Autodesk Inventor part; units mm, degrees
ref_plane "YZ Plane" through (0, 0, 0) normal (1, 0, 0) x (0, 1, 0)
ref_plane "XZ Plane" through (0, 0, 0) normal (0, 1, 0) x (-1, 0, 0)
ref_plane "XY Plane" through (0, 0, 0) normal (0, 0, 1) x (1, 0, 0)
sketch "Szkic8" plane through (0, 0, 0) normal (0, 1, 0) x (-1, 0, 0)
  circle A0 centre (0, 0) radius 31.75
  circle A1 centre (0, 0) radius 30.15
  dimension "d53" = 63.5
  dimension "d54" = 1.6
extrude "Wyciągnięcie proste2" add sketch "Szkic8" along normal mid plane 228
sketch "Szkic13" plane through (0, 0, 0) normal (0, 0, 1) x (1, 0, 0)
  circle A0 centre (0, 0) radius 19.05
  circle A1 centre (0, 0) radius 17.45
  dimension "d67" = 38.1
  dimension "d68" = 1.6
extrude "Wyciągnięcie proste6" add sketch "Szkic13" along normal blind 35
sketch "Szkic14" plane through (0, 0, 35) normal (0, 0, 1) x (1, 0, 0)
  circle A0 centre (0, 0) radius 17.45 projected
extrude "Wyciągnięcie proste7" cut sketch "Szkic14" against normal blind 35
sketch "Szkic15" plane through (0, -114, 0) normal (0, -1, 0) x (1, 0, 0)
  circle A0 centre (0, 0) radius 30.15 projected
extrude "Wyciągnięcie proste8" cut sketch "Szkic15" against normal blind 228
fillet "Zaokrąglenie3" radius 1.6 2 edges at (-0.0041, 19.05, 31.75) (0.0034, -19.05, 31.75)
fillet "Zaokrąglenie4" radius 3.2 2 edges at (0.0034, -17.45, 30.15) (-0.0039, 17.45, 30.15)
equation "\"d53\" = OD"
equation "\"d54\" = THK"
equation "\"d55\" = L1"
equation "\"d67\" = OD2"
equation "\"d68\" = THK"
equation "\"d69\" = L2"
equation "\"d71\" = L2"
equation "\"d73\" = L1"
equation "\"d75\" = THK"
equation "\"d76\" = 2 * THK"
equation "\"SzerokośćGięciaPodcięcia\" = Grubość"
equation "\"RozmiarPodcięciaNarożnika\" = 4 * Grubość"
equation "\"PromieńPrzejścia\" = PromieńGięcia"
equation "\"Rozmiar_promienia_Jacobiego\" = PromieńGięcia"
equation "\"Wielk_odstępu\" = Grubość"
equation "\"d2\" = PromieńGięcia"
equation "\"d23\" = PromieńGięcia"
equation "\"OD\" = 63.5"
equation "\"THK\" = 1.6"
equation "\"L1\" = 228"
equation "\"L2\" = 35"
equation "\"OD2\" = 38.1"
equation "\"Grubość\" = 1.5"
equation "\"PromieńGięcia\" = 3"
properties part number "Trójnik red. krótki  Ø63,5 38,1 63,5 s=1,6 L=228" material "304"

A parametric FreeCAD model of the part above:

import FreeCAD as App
import Part
import Sketcher
from FreeCAD import Vector
Q = App.Units.Quantity


def edges_at(feature, points):
    """Names of the edges that pass closest to the given points."""
    edges = feature.Shape.Edges
    near = lambda p: min(range(len(edges)), key=lambda i: edges[i].distToShape(Part.Vertex(*p))[0])
    return sorted({f"Edge{near(p) + 1}" for p in points})

doc = App.newDocument("Part")
body = doc.addObject("PartDesign::Body", "Body")

sketch1 = body.newObject("Sketcher::SketchObject", "Sketch")
sketch1.AttachmentSupport = (doc.getObject("XZ_Plane"), [""])
sketch1.MapMode = "FlatFace"
sketch1.addGeometry([
    Part.Circle(Vector(0, 0, 0), Vector(0, 0, 1), 32),
    Part.Circle(Vector(0, 0, 0), Vector(0, 0, 1), 30),
], False)
sketch1.addConstraint([
    Sketcher.Constraint("Coincident", 0, 3, -1, 1),
    Sketcher.Constraint("Coincident", 1, 3, -1, 1),
    Sketcher.Constraint("Diameter", 0, Q("63.5 mm")),
    Sketcher.Constraint("Diameter", 1, Q("60.3 mm")),
])
pad1 = body.newObject("PartDesign::Pad", "Pad")
pad1.Profile = sketch1
pad1.Length = 228
pad1.Midplane = True

sketch2 = body.newObject("Sketcher::SketchObject", "Sketch001")
sketch2.AttachmentSupport = (doc.getObject("XY_Plane"), [""])
sketch2.MapMode = "FlatFace"
sketch2.addGeometry([
    Part.Circle(Vector(0, 0, 0), Vector(0, 0, 1), 19),
    Part.Circle(Vector(0, 0, 0), Vector(0, 0, 1), 17),
], False)
sketch2.addConstraint([
    Sketcher.Constraint("Coincident", 0, 3, -1, 1),
    Sketcher.Constraint("Coincident", 1, 3, -1, 1),
    Sketcher.Constraint("Diameter", 0, Q("38.1 mm")),
    Sketcher.Constraint("Diameter", 1, Q("34.9 mm")),
])
pad2 = body.newObject("PartDesign::Pad", "Pad001")
pad2.Profile = sketch2
pad2.Length = 35

sketch3 = body.newObject("Sketcher::SketchObject", "Sketch002")
sketch3.AttachmentSupport = (doc.getObject("XY_Plane"), [""])
sketch3.MapMode = "FlatFace"
sketch3.AttachmentOffset = App.Placement(Vector(0, 0, 35), App.Rotation())
sketch3.addGeometry(Part.Circle(Vector(0, 0, 0), Vector(0, 0, 1), 17), False)
sketch3.addConstraint([
    Sketcher.Constraint("Coincident", 0, 3, -1, 1),
    Sketcher.Constraint("Diameter", 0, Q("34.9 mm")),
])
pocket1 = body.newObject("PartDesign::Pocket", "Pocket")
pocket1.Profile = sketch3
pocket1.Length = 35

sketch4 = body.newObject("Sketcher::SketchObject", "Sketch003")
sketch4.AttachmentSupport = (doc.getObject("XZ_Plane"), [""])
sketch4.MapMode = "FlatFace"
sketch4.AttachmentOffset = App.Placement(Vector(0, 0, 114), App.Rotation())
sketch4.addGeometry(Part.Circle(Vector(0, 0, 0), Vector(0, 0, 1), 30), False)
sketch4.addConstraint([
    Sketcher.Constraint("Coincident", 0, 3, -1, 1),
    Sketcher.Constraint("Diameter", 0, Q("60.3 mm")),
])
pocket2 = body.newObject("PartDesign::Pocket", "Pocket001")
pocket2.Profile = sketch4
pocket2.Length = 228
doc.recompute()

fillet = body.newObject("PartDesign::Fillet", "Fillet")
fillet.Base = (pocket2, edges_at(pocket2, [(-0.004, 19.05, 31.75), (0.003, -19.05, 31.75)]))
fillet.Radius = 1.6
doc.recompute()

fillet2 = body.newObject("PartDesign::Fillet", "Fillet001")
fillet2.Base = (fillet, edges_at(fillet, [(0.003, -17.45, 30.15), (-0.004, 17.45, 30.15)]))
fillet2.Radius = 3.2

doc.recompute()
